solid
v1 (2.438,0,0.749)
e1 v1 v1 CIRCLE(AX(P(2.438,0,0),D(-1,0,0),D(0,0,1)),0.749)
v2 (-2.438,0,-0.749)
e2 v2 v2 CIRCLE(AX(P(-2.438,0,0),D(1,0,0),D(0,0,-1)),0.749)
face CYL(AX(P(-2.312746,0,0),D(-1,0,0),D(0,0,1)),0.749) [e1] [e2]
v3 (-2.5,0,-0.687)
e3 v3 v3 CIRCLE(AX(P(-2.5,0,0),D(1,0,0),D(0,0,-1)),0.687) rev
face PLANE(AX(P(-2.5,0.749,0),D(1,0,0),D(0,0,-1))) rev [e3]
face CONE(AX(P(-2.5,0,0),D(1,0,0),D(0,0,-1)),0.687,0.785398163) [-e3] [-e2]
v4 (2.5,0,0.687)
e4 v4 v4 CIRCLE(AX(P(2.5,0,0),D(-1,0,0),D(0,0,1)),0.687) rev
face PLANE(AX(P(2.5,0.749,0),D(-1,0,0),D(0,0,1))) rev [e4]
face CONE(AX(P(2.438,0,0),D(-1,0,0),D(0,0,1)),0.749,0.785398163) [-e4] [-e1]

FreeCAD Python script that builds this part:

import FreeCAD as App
import Part
import Sketcher

V = App.Vector
Q = App.Units.Quantity


def edges_at(feature, points):
    """Names of the edges that pass closest to the given points."""
    edges = feature.Shape.Edges
    near = lambda p: min(range(len(edges)), key=lambda i: edges[i].distToShape(Part.Vertex(*p))[0])
    return sorted({f"Edge{near(p) + 1}" for p in points})


def add_polygon(sketch, points):
    """Adds a closed chain of lines whose ends are joined by coincident constraints."""
    first, n = sketch.GeometryCount, len(points)
    for a, b in zip(points, points[1:] + points[:1]):
        sketch.addGeometry(Part.LineSegment(App.Vector(*a, 0), App.Vector(*b, 0)), False)
    for i in range(n):
        sketch.addConstraint(Sketcher.Constraint("Coincident", first + i, 2, first + (i + 1) % n, 1))

doc = App.newDocument("Part")
params = doc.addObject("Spreadsheet::Sheet", "Params")
for row, (alias, value) in enumerate([
    ("sketch1_width", "5 mm"),
    ("revolution_angle", "360 deg"),
    ("chamfer_size", "0.062 mm"),
], start=1):
    params.set(f"A{row}", alias)
    params.set(f"B{row}", "=" + value)
    params.setAlias(f"B{row}", alias)

body = doc.addObject("PartDesign::Body", "Body")

# Sketch on XY plane
sketch1 = body.newObject("Sketcher::SketchObject", "Sketch")
sketch1.AttachmentSupport = (doc.getObject("XY_Plane"), [""])
sketch1.MapMode = "FlatFace"
add_polygon(sketch1, [(-2.5, 0.7), (-2.5, 0), (2.5, 0), (2.5, 0.7)])  # lines 0-3
sketch1.addConstraint([
    Sketcher.Constraint("Vertical", 0),
    Sketcher.Constraint("Horizontal", 1),
    Sketcher.Constraint("Vertical", 2),
    Sketcher.Constraint("Horizontal", 3),
    Sketcher.Constraint("Symmetric", 0, 2, 1, 2, -1, 1),
    Sketcher.Constraint("DistanceX", 1, 1, 1, 2, Q("5 mm")),
    Sketcher.Constraint("DistanceY", 0, 2, 0, 1, Q("0.749 mm")),
])
sketch1.setExpression("Constraints[9]", "Params.sketch1_width")
revolution = body.newObject("PartDesign::Revolution", "Revolution")
revolution.Profile = sketch1
revolution.ReferenceAxis = (sketch1, ["H_Axis"])
revolution.setExpression("Angle", "Params.revolution_angle")
doc.recompute()

chamfer = body.newObject("PartDesign::Chamfer", "Chamfer")
chamfer.Base = (revolution, edges_at(revolution, [(-2.5, -0.749, 0), (2.5, -0.749, 0)]))
chamfer.setExpression("Size", "Params.chamfer_size")

doc.recompute()
